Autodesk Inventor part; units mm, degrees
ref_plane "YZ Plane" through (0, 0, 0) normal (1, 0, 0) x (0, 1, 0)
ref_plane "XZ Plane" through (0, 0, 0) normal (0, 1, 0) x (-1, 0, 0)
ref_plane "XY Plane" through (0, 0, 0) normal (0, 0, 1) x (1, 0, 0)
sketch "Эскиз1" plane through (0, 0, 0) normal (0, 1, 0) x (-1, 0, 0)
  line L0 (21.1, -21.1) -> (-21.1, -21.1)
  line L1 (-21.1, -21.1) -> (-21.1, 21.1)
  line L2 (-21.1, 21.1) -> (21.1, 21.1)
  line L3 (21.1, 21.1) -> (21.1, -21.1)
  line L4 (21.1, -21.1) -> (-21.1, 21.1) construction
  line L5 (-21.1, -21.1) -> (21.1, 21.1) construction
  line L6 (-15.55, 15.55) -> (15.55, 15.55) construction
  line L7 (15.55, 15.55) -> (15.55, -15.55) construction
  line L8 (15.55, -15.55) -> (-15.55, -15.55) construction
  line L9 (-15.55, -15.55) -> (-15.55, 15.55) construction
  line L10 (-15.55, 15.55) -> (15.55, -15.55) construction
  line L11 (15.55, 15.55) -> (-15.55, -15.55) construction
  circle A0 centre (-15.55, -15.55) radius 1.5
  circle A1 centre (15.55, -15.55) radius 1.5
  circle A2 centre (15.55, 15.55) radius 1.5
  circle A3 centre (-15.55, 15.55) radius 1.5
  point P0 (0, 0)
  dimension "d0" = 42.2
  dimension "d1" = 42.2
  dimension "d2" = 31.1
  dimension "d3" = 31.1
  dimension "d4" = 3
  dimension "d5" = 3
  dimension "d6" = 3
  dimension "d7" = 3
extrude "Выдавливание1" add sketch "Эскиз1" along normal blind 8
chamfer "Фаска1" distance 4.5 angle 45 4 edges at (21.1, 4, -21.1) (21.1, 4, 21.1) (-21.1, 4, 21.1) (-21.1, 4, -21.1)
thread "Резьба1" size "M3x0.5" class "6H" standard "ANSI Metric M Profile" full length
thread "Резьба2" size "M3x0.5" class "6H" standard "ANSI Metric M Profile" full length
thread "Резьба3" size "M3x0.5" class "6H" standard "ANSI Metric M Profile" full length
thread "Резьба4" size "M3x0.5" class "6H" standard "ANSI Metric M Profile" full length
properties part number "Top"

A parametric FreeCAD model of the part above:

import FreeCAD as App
import Part
import Sketcher

V = App.Vector


def edges_at(feature, points):
    """Names of the edges that pass closest to the given points."""
    edges = feature.Shape.Edges
    near = lambda p: min(range(len(edges)), key=lambda i: edges[i].distToShape(Part.Vertex(*p))[0])
    return sorted({f"Edge{near(p) + 1}" for p in points})

doc = App.newDocument("Part")
body = doc.addObject("PartDesign::Body", "Body")

# Sketch on XZ plane
sketch1 = body.newObject("Sketcher::SketchObject", "Sketch")
sketch1.AttachmentSupport = (doc.getObject("XZ_Plane"), [""])
sketch1.MapMode = "FlatFace"
sketch1.addGeometry(Part.LineSegment(V(21.1, -21.1, 0), V(-21.1, -21.1, 0)), False)
sketch1.addGeometry(Part.LineSegment(V(-21.1, -21.1, 0), V(-21.1, 21.1, 0)), False)
sketch1.addGeometry(Part.LineSegment(V(-21.1, 21.1, 0), V(21.1, 21.1, 0)), False)
sketch1.addGeometry(Part.LineSegment(V(21.1, 21.1, 0), V(21.1, -21.1, 0)), False)
sketch1.addGeometry(Part.Circle(V(15.6, -15.6, 0), V(0, 0, 1), 1.5), False)
sketch1.addGeometry(Part.Circle(V(-15.6, -15.6, 0), V(0, 0, 1), 1.5), False)
sketch1.addGeometry(Part.Circle(V(15.6, 15.6, 0), V(0, 0, 1), 1.5), False)
sketch1.addGeometry(Part.Circle(V(-15.6, 15.6, 0), V(0, 0, 1), 1.5), False)
sketch1.addConstraint(Sketcher.Constraint("Coincident", 0, 2, 1, 1))
sketch1.addConstraint(Sketcher.Constraint("Coincident", 1, 2, 2, 1))
sketch1.addConstraint(Sketcher.Constraint("Coincident", 2, 2, 3, 1))
sketch1.addConstraint(Sketcher.Constraint("Coincident", 3, 2, 0, 1))
sketch1.addConstraint(Sketcher.Constraint("Horizontal", 0))
sketch1.addConstraint(Sketcher.Constraint("Vertical", 1))
sketch1.addConstraint(Sketcher.Constraint("Horizontal", 2))
sketch1.addConstraint(Sketcher.Constraint("Vertical", 3))
sketch1.addConstraint(Sketcher.Constraint("Equal", 4, 5))
sketch1.addConstraint(Sketcher.Constraint("Equal", 5, 6))
sketch1.addConstraint(Sketcher.Constraint("Equal", 6, 7))
sketch1.addConstraint(Sketcher.Constraint("Symmetric", 5, 3, 6, 3, -1, 1))
sketch1.addConstraint(Sketcher.Constraint("Symmetric", 4, 3, 7, 3, -1, 1))
sketch1.addConstraint(Sketcher.Constraint("Symmetric", 0, 2, 2, 2, -1, 1))
sketch1.addConstraint(Sketcher.Constraint("Symmetric", 4, 3, 5, 3, -2))
sketch1.addConstraint(Sketcher.Constraint("Equal", 2, 1))
sketch1.addConstraint(Sketcher.Constraint("Diameter", 4, 3.0))
sketch1.addConstraint(Sketcher.Constraint("DistanceX", 0, 2, 0, 1, 42.2))
sketch1.addConstraint(Sketcher.Constraint("DistanceX", 5, 3, 4, 3, 31.1))
sketch1.addConstraint(Sketcher.Constraint("DistanceY", 4, 3, 6, 3, 31.1))
pad1 = body.newObject("PartDesign::Pad", "Pad")
pad1.Profile = sketch1
pad1.Length = 8
pad1.Reversed = True
doc.recompute()

chamfer = body.newObject("PartDesign::Chamfer", "Chamfer")
chamfer.Base = (pad1, edges_at(pad1, [
    (21.1, 4, -21.1),
    (21.1, 4, 21.1),
    (-21.1, 4, 21.1),
    (-21.1, 4, -21.1),
]))
chamfer.Size = 4.5

doc.recompute()
